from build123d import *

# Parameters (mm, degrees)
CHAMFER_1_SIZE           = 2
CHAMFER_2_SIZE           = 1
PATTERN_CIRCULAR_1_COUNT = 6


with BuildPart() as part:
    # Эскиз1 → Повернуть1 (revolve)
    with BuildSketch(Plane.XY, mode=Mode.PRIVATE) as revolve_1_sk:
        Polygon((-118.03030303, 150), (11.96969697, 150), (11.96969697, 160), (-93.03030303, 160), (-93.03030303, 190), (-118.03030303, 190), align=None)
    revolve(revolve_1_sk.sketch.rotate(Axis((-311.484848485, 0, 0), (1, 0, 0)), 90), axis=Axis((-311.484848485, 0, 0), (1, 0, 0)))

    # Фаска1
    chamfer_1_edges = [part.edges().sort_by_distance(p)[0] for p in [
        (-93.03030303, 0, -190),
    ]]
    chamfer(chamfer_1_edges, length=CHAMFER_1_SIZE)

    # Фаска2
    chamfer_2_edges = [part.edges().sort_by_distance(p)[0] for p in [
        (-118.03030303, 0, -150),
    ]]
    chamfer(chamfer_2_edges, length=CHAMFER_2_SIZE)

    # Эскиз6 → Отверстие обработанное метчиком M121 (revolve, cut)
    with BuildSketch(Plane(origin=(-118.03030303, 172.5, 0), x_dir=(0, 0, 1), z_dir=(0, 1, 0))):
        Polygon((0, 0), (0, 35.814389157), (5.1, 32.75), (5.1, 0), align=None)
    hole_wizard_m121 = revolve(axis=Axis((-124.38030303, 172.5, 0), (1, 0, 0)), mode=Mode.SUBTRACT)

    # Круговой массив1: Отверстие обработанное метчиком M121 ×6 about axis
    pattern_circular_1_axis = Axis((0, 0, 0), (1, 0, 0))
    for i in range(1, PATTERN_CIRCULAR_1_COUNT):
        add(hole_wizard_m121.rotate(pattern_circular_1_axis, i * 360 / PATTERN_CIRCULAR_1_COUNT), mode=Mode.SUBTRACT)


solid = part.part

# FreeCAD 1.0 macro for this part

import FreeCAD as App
import Part
import Sketcher

V = App.Vector
Q = App.Units.Quantity


def edges_at(feature, points):
    """Names of the edges that pass closest to the given points."""
    edges = feature.Shape.Edges
    near = lambda p: min(range(len(edges)), key=lambda i: edges[i].distToShape(Part.Vertex(*p))[0])
    return sorted({f"Edge{near(p) + 1}" for p in points})

doc = App.newDocument("Part")
body = doc.addObject("PartDesign::Body", "Body")

# Sketch on XY plane
sketch1 = body.newObject("Sketcher::SketchObject", "Sketch")
sketch1.AttachmentSupport = (doc.getObject("XY_Plane"), [""])
sketch1.MapMode = "FlatFace"
sketch1.addGeometry([
    Part.LineSegment(V(-118, 150, 0), V(12, 150, 0)),  # 0
    Part.LineSegment(V(12, 150, 0), V(12, 160, 0)),  # 1
    Part.LineSegment(V(12, 160, 0), V(-93, 160, 0)),  # 2
    Part.LineSegment(V(-93, 160, 0), V(-93, 190, 0)),  # 3
    Part.LineSegment(V(-93, 190, 0), V(-118, 190, 0)),  # 4
    Part.LineSegment(V(-118, 190, 0), V(-118, 150, 0)),  # 5
], False)
sketch1.addConstraint([
    Sketcher.Constraint("Coincident", 0, 2, 1, 1),
    Sketcher.Constraint("Coincident", 1, 2, 2, 1),
    Sketcher.Constraint("Coincident", 2, 2, 3, 1),
    Sketcher.Constraint("Coincident", 3, 2, 4, 1),
    Sketcher.Constraint("Coincident", 4, 2, 5, 1),
    Sketcher.Constraint("Coincident", 5, 2, 0, 1),
    Sketcher.Constraint("Horizontal", 0),
    Sketcher.Constraint("Vertical", 1),
    Sketcher.Constraint("Horizontal", 2),
    Sketcher.Constraint("Vertical", 3),
    Sketcher.Constraint("Horizontal", 4),
    Sketcher.Constraint("Vertical", 5),
    Sketcher.Constraint("DistanceX", 0, 1, 0, 2, Q("130 mm")),
    Sketcher.Constraint("DistanceX", 2, 2, 2, 1, Q("105 mm")),
    Sketcher.Constraint("DistanceY", 1, 1, 1, 2, Q("10 mm")),
    Sketcher.Constraint("DistanceY", 3, 1, 3, 2, Q("30 mm")),
    Sketcher.Constraint("DistanceY", -1, 1, 0, 2, Q("150 mm")),
    Sketcher.Constraint("DistanceX", -1, 1, 0, 2, Q("11.969697 mm")),
])
revolution = body.newObject("PartDesign::Revolution", "Revolution")
revolution.Profile = sketch1
revolution.ReferenceAxis = (sketch1, ["H_Axis"])
revolution.Angle = 360
doc.recompute()

chamfer = body.newObject("PartDesign::Chamfer", "Chamfer")
chamfer.Base = (revolution, edges_at(revolution, [(-93.03, 0, -190)]))
chamfer.Size = 2
doc.recompute()

chamfer2 = body.newObject("PartDesign::Chamfer", "Chamfer001")
chamfer2.Base = (chamfer, edges_at(chamfer, [(-118.03, 0, -150)]))
chamfer2.Size = 1

# Sketch on XZ plane
sketch2 = body.newObject("Sketcher::SketchObject", "Sketch001")
sketch2.AttachmentSupport = (doc.getObject("XZ_Plane"), [""])
sketch2.MapMode = "FlatFace"
sketch2.AttachmentOffset = App.Placement(V(0, 0, -172.5), App.Rotation())
sketch2.addGeometry([
    Part.LineSegment(V(-82, 0, 0), V(-118, 0, 0)),
    Part.LineSegment(V(-118, 0, 0), V(-118, 5, 0)),
    Part.LineSegment(V(-118, 5, 0), V(-85, 5, 0)),
    Part.LineSegment(V(-85, 5, 0), V(-82, 0, 0)),
], False)
sketch2.addConstraint([
    Sketcher.Constraint("Coincident", 0, 2, 1, 1),
    Sketcher.Constraint("Coincident", 1, 2, 2, 1),
    Sketcher.Constraint("Coincident", 2, 2, 3, 1),
    Sketcher.Constraint("Coincident", 3, 2, 0, 1),
    Sketcher.Constraint("Horizontal", 0),
    Sketcher.Constraint("Vertical", 1),
    Sketcher.Constraint("Horizontal", 2),
    Sketcher.Constraint("PointOnObject", 0, 2, -1),
    Sketcher.Constraint("Angle", 3, Q("-59 deg")),
    Sketcher.Constraint("DistanceY", 1, 1, 1, 2, Q("5.1 mm")),
    Sketcher.Constraint("DistanceX", 2, 1, 2, 2, Q("32.75 mm")),
    Sketcher.Constraint("DistanceX", 0, 2, -1, 1, Q("118.030303 mm")),
])
groove = body.newObject("PartDesign::Groove", "Groove")
groove.Profile = sketch2
groove.ReferenceAxis = (sketch2, ["H_Axis"])
groove.Angle = 360
doc.recompute()

polarpattern = body.newObject("PartDesign::PolarPattern", "PolarPattern")
polarpattern.Originals = [groove]
polarpattern.Axis = (doc.getObject("X_Axis"), [""])
polarpattern.Angle = 360
polarpattern.Occurrences = 6
body.Tip = polarpattern

doc.recompute()
